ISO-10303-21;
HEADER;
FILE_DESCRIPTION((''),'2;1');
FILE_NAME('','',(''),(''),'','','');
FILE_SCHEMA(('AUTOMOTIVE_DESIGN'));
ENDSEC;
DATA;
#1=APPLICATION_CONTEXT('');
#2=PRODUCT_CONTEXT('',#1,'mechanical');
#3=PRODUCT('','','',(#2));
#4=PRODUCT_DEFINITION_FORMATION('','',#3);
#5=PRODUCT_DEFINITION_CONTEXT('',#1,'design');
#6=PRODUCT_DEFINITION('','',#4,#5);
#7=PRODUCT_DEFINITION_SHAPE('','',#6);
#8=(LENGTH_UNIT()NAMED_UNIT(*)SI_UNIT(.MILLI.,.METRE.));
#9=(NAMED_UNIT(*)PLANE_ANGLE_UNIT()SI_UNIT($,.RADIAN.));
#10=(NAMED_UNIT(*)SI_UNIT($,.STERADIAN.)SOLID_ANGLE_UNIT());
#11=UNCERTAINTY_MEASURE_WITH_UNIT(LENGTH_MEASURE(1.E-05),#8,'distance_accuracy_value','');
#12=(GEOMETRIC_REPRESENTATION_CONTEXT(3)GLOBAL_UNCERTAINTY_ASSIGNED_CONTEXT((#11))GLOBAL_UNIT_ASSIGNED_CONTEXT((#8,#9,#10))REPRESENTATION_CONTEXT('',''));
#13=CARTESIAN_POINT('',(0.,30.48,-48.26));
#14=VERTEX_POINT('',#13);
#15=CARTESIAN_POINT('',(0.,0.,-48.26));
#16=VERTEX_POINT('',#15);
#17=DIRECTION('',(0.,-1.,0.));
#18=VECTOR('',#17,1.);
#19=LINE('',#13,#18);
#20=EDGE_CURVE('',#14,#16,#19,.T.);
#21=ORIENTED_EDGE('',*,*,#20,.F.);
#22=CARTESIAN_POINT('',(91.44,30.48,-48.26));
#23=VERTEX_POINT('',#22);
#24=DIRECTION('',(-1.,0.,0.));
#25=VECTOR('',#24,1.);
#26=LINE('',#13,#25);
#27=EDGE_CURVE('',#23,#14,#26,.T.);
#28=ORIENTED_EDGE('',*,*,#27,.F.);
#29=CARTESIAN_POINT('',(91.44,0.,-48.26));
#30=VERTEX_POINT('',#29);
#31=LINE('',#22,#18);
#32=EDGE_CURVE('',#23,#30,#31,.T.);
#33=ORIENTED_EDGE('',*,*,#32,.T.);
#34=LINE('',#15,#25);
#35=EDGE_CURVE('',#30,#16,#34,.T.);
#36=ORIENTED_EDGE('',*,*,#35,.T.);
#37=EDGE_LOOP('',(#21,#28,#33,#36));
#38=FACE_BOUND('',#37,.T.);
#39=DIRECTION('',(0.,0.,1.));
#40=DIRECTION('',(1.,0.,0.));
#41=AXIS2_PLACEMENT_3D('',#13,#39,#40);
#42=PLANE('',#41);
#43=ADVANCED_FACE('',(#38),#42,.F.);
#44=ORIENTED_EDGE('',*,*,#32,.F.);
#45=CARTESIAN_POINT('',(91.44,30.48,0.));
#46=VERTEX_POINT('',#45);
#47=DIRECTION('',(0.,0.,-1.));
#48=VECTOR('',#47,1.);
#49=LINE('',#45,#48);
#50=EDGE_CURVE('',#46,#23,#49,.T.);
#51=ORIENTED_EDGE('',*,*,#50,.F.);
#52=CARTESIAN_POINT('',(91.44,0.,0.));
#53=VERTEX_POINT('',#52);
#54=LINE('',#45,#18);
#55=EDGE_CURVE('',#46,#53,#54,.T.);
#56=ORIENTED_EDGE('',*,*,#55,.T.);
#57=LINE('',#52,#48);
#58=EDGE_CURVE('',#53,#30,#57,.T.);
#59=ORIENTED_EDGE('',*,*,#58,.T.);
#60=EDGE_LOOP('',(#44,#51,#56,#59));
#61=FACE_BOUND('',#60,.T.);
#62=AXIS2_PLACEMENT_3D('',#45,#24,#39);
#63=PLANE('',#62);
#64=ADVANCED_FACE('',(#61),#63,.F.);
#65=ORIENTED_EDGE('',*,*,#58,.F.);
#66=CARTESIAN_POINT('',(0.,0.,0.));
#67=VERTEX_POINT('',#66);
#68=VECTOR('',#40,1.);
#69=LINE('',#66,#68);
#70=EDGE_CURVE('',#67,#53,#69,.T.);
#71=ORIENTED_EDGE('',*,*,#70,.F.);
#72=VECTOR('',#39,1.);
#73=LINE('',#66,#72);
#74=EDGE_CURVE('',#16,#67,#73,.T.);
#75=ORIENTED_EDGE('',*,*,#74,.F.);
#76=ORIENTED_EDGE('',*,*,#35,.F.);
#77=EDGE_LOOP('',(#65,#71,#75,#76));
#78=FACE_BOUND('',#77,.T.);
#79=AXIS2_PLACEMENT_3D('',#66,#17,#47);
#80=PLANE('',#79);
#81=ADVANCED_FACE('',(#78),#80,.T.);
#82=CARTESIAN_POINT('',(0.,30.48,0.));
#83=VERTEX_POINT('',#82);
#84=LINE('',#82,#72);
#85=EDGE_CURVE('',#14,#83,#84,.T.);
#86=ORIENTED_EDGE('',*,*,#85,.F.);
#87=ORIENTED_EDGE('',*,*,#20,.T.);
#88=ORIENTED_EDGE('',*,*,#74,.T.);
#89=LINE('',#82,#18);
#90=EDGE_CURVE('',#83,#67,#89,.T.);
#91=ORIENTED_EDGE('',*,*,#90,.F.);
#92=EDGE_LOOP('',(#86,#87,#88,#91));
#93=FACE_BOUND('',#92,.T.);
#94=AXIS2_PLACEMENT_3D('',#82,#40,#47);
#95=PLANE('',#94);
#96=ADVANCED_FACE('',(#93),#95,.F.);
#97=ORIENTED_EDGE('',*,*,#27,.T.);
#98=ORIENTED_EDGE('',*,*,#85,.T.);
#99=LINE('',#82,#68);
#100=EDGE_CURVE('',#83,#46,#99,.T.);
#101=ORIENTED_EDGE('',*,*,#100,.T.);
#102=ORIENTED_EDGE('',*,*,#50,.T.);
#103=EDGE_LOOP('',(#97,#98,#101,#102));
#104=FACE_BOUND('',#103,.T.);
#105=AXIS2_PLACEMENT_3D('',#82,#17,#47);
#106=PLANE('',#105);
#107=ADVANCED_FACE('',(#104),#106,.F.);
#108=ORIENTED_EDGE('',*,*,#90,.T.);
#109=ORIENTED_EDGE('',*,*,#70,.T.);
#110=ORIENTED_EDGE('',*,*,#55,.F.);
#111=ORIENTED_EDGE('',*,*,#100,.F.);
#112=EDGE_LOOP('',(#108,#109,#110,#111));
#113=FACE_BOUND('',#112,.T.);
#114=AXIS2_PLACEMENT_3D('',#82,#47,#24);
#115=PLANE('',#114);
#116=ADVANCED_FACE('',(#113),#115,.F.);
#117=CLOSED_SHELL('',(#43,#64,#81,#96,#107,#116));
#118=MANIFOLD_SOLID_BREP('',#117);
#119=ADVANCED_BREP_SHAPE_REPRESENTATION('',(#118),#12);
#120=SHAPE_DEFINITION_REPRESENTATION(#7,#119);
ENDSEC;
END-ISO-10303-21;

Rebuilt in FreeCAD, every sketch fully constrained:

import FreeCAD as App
import Part
import Sketcher
from FreeCAD import Vector
Q = App.Units.Quantity

doc = App.newDocument("Part")
body = doc.addObject("PartDesign::Body", "Body")

sketch1 = doc.addObject("Sketcher::SketchObject", "Sketch")
body.addObject(sketch1)
sketch1.AttachmentSupport = (doc.XZ_Plane, [""])
sketch1.MapMode = "FlatFace"
sketch1.addGeometry([
    Part.LineSegment(Vector(0, -48, 0), Vector(0, 0, 0)),
    Part.LineSegment(Vector(0, 0, 0), Vector(91, 0, 0)),
    Part.LineSegment(Vector(91, 0, 0), Vector(91, -48, 0)),
    Part.LineSegment(Vector(91, -48, 0), Vector(0, -48, 0)),
], False)
sketch1.addConstraint([
    Sketcher.Constraint("Coincident", 0, 2, 1, 1),
    Sketcher.Constraint("Coincident", 1, 2, 2, 1),
    Sketcher.Constraint("Coincident", 2, 2, 3, 1),
    Sketcher.Constraint("Coincident", 3, 2, 0, 1),
    Sketcher.Constraint("Vertical", 0),
    Sketcher.Constraint("Horizontal", 1),
    Sketcher.Constraint("Vertical", 2),
    Sketcher.Constraint("Horizontal", 3),
    Sketcher.Constraint("Coincident", 0, 2, -1, 1),
    Sketcher.Constraint("DistanceX", 1, 1, 1, 2, Q("3.6 in")),
    Sketcher.Constraint("DistanceY", 0, 1, 0, 2, Q("1.9 in")),
])
pad1 = doc.addObject("PartDesign::Pad", "Pad")
body.addObject(pad1)
pad1.Profile = sketch1
pad1.Length = Q("1.2 in")
pad1.Reversed = True

doc.recompute()
